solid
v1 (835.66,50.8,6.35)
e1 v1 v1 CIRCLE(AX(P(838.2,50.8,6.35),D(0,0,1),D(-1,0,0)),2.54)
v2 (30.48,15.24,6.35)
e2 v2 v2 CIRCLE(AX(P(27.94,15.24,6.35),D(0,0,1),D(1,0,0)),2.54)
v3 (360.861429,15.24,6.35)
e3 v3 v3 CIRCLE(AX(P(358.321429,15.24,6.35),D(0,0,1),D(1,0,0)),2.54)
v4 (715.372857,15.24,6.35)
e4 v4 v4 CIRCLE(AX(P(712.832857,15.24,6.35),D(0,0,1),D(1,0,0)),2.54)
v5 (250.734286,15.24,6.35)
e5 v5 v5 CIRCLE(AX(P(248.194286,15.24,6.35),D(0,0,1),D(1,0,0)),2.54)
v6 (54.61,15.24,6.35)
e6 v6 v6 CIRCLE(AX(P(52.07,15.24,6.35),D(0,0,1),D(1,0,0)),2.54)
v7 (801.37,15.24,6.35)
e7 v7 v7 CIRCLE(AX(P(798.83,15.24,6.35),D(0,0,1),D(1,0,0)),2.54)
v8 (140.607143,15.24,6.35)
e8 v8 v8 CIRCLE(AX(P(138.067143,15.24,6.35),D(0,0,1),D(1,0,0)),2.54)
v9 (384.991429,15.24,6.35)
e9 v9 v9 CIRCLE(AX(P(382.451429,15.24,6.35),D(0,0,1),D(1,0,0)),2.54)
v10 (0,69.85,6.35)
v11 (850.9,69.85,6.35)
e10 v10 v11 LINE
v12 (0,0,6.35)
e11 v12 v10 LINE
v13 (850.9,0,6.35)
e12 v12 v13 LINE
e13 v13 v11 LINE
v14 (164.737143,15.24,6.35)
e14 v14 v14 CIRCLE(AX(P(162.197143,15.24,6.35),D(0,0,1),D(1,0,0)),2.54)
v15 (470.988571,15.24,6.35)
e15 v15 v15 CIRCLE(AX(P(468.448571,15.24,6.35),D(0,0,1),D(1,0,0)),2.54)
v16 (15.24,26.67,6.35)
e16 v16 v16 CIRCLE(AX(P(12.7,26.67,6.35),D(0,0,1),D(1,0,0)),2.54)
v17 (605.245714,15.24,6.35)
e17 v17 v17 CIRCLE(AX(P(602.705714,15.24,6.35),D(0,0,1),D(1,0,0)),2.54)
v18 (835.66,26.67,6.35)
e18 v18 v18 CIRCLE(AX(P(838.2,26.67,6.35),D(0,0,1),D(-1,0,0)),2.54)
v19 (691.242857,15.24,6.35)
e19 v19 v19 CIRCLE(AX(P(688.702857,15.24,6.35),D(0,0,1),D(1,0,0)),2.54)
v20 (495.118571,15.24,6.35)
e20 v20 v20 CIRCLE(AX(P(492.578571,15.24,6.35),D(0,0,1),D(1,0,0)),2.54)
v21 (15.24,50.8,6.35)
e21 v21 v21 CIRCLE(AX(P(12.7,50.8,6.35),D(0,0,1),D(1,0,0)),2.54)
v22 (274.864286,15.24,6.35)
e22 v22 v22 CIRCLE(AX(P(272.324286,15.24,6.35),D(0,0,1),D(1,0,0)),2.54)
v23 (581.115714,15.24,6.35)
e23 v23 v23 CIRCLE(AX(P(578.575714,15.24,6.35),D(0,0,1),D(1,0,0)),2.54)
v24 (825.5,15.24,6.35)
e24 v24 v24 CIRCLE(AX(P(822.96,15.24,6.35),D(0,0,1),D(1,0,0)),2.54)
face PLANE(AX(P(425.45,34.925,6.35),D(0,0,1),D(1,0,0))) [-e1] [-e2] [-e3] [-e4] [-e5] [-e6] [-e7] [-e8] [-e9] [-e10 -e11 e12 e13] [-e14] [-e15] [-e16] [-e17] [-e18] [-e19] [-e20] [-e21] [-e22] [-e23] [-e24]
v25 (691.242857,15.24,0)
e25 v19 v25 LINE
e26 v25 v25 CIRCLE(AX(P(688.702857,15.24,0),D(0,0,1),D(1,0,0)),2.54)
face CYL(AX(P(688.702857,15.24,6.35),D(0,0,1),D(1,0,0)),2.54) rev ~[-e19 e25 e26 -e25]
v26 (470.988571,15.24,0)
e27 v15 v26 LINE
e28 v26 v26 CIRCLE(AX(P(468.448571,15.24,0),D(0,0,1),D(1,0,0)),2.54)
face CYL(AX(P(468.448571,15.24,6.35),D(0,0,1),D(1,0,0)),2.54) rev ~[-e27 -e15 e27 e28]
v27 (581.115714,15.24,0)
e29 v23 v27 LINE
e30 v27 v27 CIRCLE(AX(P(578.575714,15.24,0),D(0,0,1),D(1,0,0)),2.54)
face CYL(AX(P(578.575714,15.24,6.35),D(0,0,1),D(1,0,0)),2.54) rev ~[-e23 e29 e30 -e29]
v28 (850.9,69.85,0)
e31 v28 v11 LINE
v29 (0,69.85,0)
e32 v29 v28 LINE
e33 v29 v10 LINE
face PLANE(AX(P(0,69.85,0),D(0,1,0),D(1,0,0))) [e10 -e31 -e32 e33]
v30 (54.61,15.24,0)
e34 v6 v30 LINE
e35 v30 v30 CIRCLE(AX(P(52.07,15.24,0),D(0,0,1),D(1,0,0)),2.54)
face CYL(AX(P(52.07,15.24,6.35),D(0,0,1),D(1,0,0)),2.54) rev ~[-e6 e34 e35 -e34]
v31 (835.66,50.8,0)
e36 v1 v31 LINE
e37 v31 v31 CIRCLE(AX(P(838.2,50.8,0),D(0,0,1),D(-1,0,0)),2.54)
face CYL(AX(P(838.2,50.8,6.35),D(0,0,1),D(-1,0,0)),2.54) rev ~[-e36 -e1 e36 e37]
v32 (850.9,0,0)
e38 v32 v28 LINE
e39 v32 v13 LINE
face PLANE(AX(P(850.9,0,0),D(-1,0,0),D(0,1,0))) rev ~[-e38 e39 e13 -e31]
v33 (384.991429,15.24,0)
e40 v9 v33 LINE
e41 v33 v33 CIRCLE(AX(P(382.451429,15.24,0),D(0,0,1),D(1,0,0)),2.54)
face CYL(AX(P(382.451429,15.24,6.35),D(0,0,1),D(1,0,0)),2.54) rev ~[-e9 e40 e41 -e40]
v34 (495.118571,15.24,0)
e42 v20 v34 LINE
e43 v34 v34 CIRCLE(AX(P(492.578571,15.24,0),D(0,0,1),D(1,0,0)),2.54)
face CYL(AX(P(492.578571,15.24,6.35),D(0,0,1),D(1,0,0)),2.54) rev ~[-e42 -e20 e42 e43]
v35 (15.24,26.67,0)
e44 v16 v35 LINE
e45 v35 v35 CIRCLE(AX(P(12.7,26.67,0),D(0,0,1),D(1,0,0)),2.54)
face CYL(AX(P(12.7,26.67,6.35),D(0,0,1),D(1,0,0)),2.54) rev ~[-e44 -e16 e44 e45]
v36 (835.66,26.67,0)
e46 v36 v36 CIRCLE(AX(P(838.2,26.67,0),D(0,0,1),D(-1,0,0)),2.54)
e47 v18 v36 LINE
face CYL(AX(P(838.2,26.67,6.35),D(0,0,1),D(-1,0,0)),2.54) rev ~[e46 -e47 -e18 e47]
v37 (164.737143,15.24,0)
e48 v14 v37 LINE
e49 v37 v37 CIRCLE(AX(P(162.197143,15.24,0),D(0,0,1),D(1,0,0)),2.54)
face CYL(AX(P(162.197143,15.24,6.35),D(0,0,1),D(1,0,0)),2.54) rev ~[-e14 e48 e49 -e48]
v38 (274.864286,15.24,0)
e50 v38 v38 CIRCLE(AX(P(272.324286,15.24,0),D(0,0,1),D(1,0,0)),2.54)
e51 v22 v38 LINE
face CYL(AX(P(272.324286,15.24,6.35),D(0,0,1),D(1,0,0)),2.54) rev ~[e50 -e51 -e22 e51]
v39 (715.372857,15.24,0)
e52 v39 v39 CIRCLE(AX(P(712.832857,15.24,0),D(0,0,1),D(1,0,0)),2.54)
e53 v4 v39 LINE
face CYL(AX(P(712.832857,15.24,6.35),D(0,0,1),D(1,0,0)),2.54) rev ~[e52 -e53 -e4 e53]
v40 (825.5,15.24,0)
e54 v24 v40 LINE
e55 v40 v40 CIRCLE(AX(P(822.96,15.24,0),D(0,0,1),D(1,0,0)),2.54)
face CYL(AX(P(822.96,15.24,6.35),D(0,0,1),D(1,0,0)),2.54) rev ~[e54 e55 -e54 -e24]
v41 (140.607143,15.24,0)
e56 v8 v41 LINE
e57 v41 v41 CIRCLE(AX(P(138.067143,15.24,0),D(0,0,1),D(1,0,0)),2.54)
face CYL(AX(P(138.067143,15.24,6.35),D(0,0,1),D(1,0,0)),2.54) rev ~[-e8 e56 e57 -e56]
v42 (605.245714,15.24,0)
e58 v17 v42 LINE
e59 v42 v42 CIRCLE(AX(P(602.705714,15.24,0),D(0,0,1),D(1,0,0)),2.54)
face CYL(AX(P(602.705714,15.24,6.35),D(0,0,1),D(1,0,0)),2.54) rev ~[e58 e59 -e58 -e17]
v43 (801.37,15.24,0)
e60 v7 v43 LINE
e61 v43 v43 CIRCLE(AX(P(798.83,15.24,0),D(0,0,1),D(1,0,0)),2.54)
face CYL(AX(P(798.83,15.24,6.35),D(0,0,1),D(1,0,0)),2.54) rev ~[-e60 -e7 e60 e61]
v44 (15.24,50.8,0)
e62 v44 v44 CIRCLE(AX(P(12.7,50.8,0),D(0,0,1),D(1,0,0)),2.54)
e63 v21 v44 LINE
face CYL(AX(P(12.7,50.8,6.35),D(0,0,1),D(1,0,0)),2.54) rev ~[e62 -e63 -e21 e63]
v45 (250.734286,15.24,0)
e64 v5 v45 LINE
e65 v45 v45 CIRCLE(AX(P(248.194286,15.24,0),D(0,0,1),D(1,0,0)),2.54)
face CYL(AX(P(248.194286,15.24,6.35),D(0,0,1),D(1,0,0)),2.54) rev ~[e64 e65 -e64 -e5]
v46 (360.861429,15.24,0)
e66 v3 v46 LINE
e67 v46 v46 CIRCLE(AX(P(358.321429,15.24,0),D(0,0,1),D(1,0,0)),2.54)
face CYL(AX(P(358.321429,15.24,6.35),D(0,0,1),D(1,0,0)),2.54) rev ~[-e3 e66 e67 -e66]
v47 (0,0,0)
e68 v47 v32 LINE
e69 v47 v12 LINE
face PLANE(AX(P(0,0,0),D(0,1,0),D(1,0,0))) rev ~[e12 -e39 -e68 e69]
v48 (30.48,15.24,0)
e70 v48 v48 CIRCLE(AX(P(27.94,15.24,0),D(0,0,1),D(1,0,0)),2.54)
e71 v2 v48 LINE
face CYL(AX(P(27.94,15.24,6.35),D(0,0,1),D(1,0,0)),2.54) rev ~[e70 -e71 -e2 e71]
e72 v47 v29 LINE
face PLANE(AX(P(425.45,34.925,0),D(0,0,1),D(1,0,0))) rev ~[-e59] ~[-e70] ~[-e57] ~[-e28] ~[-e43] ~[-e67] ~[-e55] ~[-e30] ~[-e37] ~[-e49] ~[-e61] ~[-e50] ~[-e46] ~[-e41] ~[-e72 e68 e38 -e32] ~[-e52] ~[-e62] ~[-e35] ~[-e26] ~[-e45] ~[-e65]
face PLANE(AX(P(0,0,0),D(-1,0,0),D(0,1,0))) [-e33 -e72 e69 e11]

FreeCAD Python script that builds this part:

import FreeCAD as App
import Part
import Sketcher
from FreeCAD import Vector
Q = App.Units.Quantity

doc = App.newDocument("Part")
body = doc.addObject("PartDesign::Body", "Body")

# Sketch on XY plane
sketch1 = body.newObject("Sketcher::SketchObject", "Sketch")
sketch1.AttachmentSupport = (doc.getObject("XY_Plane"), [""])
sketch1.MapMode = "FlatFace"
sketch1.addGeometry(Part.LineSegment(Vector(0, 70, 0), Vector(0, 0, 0)), False)
sketch1.addGeometry(Part.LineSegment(Vector(0, 0, 0), Vector(851, 0, 0)), False)
sketch1.addGeometry(Part.LineSegment(Vector(851, 0, 0), Vector(851, 70, 0)), False)
sketch1.addGeometry(Part.LineSegment(Vector(851, 70, 0), Vector(0, 70, 0)), False)
sketch1.addConstraint(Sketcher.Constraint("Coincident", 0, 2, 1, 1))
sketch1.addConstraint(Sketcher.Constraint("Coincident", 1, 2, 2, 1))
sketch1.addConstraint(Sketcher.Constraint("Coincident", 2, 2, 3, 1))
sketch1.addConstraint(Sketcher.Constraint("Coincident", 3, 2, 0, 1))
sketch1.addConstraint(Sketcher.Constraint("Vertical", 0))
sketch1.addConstraint(Sketcher.Constraint("Horizontal", 1))
sketch1.addConstraint(Sketcher.Constraint("Vertical", 2))
sketch1.addConstraint(Sketcher.Constraint("Horizontal", 3))
sketch1.addConstraint(Sketcher.Constraint("Coincident", 0, 2, -1, 1))
sketch1.addConstraint(Sketcher.Constraint("DistanceX", 1, 1, 1, 2, Q("33.5 in")))
sketch1.addConstraint(Sketcher.Constraint("DistanceY", 0, 2, 0, 1, Q("2.75 in")))
pad1 = body.newObject("PartDesign::Pad", "Pad")
pad1.Profile = sketch1
pad1.Length = Q("0.25 in")

# Sketch on XY plane
sketch2 = body.newObject("Sketcher::SketchObject", "Sketch001")
sketch2.AttachmentSupport = (doc.getObject("XY_Plane"), [""])
sketch2.MapMode = "FlatFace"
sketch2.AttachmentOffset = App.Placement(Vector(0, 0, 0.25 * 25.4), App.Rotation())
sketch2.addGeometry(Part.Circle(Vector(27.9, 15.2, 0), Vector(0, 0, 1), 2.5), False)
sketch2.addGeometry(Part.Circle(Vector(52.1, 15.2, 0), Vector(0, 0, 1), 2.5), False)
sketch2.addConstraint(Sketcher.Constraint("Equal", 0, 1))
sketch2.addConstraint(Sketcher.Constraint("Horizontal", 0, 3, 1, 3))
sketch2.addConstraint(Sketcher.Constraint("Diameter", 0, Q("0.2 in")))
sketch2.addConstraint(Sketcher.Constraint("DistanceX", -1, 1, 0, 3, Q("1.1 in")))
sketch2.addConstraint(Sketcher.Constraint("DistanceY", -1, 1, 0, 3, Q("0.6 in")))
sketch2.addConstraint(Sketcher.Constraint("DistanceX", -1, 1, 1, 3, Q("2.05 in")))
pocket1 = body.newObject("PartDesign::Pocket", "Pocket")
pocket1.Profile = sketch2
pocket1.Length = Q("0.25 in")

# Sketch on XY plane
sketch3 = body.newObject("Sketcher::SketchObject", "Sketch002")
sketch3.AttachmentSupport = (doc.getObject("XY_Plane"), [""])
sketch3.MapMode = "FlatFace"
sketch3.AttachmentOffset = App.Placement(Vector(0, 0, 0.25 * 25.4), App.Rotation())
sketch3.addGeometry(Part.Circle(Vector(12.7, 26.7, 0), Vector(0, 0, 1), 2.5), False)
sketch3.addGeometry(Part.Circle(Vector(12.7, 50.8, 0), Vector(0, 0, 1), 2.5), False)
sketch3.addGeometry(Part.Circle(Vector(838.2, 26.7, 0), Vector(0, 0, 1), 2.5), False)
sketch3.addGeometry(Part.Circle(Vector(838.2, 50.8, 0), Vector(0, 0, 1), 2.5), False)
sketch3.addConstraint(Sketcher.Constraint("Equal", 0, 1))
sketch3.addConstraint(Sketcher.Constraint("Equal", 1, 2))
sketch3.addConstraint(Sketcher.Constraint("Equal", 2, 3))
sketch3.addConstraint(Sketcher.Constraint("Horizontal", 0, 3, 2, 3))
sketch3.addConstraint(Sketcher.Constraint("Horizontal", 1, 3, 3, 3))
sketch3.addConstraint(Sketcher.Constraint("Vertical", 0, 3, 1, 3))
sketch3.addConstraint(Sketcher.Constraint("Vertical", 2, 3, 3, 3))
sketch3.addConstraint(Sketcher.Constraint("Diameter", 0, Q("0.2 in")))
sketch3.addConstraint(Sketcher.Constraint("DistanceY", -1, 1, 1, 3, Q("2 in")))
sketch3.addConstraint(Sketcher.Constraint("DistanceX", -1, 1, 2, 3, Q("33 in")))
sketch3.addConstraint(Sketcher.Constraint("DistanceX", -1, 1, 0, 3, Q("0.5 in")))
sketch3.addConstraint(Sketcher.Constraint("DistanceY", -1, 1, 0, 3, Q("1.05 in")))
pocket2 = body.newObject("PartDesign::Pocket", "Pocket001")
pocket2.Profile = sketch3
pocket2.Length = Q("0.25 in")
doc.recompute()

linearpattern = body.newObject("PartDesign::LinearPattern", "LinearPattern")
linearpattern.Originals = [pocket1]
linearpattern.Direction = (doc.getObject("X_Axis"), [""])
linearpattern.Mode = "offset"
linearpattern.Offset = 110.127143
linearpattern.Occurrences = 8
body.Tip = linearpattern

doc.recompute()
